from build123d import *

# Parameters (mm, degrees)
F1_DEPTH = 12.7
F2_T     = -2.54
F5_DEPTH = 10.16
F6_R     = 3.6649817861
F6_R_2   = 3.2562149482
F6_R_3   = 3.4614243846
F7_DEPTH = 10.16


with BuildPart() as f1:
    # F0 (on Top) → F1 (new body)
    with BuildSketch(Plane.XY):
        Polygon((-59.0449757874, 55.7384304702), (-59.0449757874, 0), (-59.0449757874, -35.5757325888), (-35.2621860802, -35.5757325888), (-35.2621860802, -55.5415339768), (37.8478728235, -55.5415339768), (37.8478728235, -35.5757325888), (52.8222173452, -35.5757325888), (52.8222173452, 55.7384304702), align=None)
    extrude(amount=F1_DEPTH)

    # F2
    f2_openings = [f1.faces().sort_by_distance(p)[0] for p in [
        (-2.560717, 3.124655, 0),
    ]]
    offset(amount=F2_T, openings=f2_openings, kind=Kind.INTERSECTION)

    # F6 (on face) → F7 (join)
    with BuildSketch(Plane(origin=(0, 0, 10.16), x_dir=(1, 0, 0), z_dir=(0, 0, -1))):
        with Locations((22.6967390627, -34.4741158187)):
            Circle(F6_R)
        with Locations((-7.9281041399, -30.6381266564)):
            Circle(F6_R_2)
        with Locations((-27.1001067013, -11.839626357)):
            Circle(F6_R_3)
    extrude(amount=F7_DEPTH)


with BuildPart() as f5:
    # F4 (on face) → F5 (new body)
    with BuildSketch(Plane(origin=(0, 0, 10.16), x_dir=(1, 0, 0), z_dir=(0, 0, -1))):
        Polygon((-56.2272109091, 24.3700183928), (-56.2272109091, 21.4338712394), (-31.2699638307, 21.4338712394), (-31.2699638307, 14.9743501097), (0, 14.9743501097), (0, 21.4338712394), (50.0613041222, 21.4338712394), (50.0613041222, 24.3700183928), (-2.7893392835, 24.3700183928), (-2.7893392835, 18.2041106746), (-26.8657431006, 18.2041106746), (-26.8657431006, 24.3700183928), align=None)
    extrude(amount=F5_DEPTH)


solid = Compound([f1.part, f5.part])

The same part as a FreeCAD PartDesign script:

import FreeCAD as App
import Part
import Sketcher
Q = App.Units.Quantity


def faces_at(feature, points):
    """Names of the faces that lie closest to the given points."""
    faces = feature.Shape.Faces
    near = lambda p: min(range(len(faces)), key=lambda i: faces[i].distToShape(Part.Vertex(*p))[0])
    return sorted({f"Face{near(p) + 1}" for p in points})

doc = App.newDocument("Part")
body = doc.addObject("PartDesign::Body", "Body")

sketch1 = doc.addObject("Sketcher::SketchObject", "Sketch")
body.addObject(sketch1)
sketch1.AttachmentSupport = (doc.XY_Plane, [""])
sketch1.MapMode = "FlatFace"
sketch1.addGeometry([
    Part.LineSegment(App.Vector(-59, 56, 0), App.Vector(-59, -36, 0)),
    Part.LineSegment(App.Vector(-59, -36, 0), App.Vector(-35, -36, 0)),
    Part.LineSegment(App.Vector(-35, -36, 0), App.Vector(-35, -56, 0)),
    Part.LineSegment(App.Vector(-35, -56, 0), App.Vector(38, -56, 0)),
    Part.LineSegment(App.Vector(38, -56, 0), App.Vector(38, -36, 0)),
    Part.LineSegment(App.Vector(38, -36, 0), App.Vector(53, -36, 0)),
    Part.LineSegment(App.Vector(53, -36, 0), App.Vector(53, 56, 0)),
    Part.LineSegment(App.Vector(53, 56, 0), App.Vector(-59, 56, 0)),
], False)
sketch1.addConstraint([
    Sketcher.Constraint("Coincident", 0, 2, 1, 1),
    Sketcher.Constraint("Coincident", 1, 2, 2, 1),
    Sketcher.Constraint("Coincident", 2, 2, 3, 1),
    Sketcher.Constraint("Coincident", 3, 2, 4, 1),
    Sketcher.Constraint("Coincident", 4, 2, 5, 1),
    Sketcher.Constraint("Coincident", 5, 2, 6, 1),
    Sketcher.Constraint("Coincident", 6, 2, 7, 1),
    Sketcher.Constraint("Coincident", 7, 2, 0, 1),
    Sketcher.Constraint("Vertical", 0),
    Sketcher.Constraint("Horizontal", 1),
    Sketcher.Constraint("Vertical", 2),
    Sketcher.Constraint("Horizontal", 3),
    Sketcher.Constraint("Vertical", 4),
    Sketcher.Constraint("Horizontal", 5),
    Sketcher.Constraint("Vertical", 6),
    Sketcher.Constraint("Horizontal", 7),
    Sketcher.Constraint("Horizontal", 1, 2, 4, 2),
    Sketcher.Constraint("DistanceY", 2, 2, 2, 1, 19.965801),
    Sketcher.Constraint("DistanceX", 1, 1, 1, 2, 23.78279),
    Sketcher.Constraint("DistanceX", 3, 1, 3, 2, 73.110059),
    Sketcher.Constraint("DistanceX", 5, 1, 5, 2, 14.974345),
    Sketcher.Constraint("DistanceY", 0, 2, 0, 1, 91.314163),
    Sketcher.Constraint("DistanceY", -1, 1, 6, 2, 55.73843),
    Sketcher.Constraint("DistanceX", 0, 2, -1, 1, 59.044976),
])
pad1 = doc.addObject("PartDesign::Pad", "Pad")
body.addObject(pad1)
pad1.Profile = sketch1
pad1.Length = Q("0.5 in")
doc.recompute()

thickness = doc.addObject("PartDesign::Thickness", "Thickness")
body.addObject(thickness)
thickness.Base = (pad1, faces_at(pad1, [(-3.111, 0.098, 0)]))
thickness.Value = Q("0.1 in")
thickness.Reversed = True
thickness.Join = "Intersection"

sketch2 = doc.addObject("Sketcher::SketchObject", "Sketch001")
body.addObject(sketch2)
sketch2.AttachmentSupport = (doc.XY_Plane, [""])
sketch2.MapMode = "FlatFace"
sketch2.AttachmentOffset = App.Placement(App.Vector(0, 0, 0.4 * 25.4), App.Rotation())
sketch2.addGeometry([
    Part.Circle(App.Vector(22.7, 34.5, 0), App.Vector(0, 0, 1), 3.7),
    Part.Circle(App.Vector(-7.9, 30.6, 0), App.Vector(0, 0, 1), 3.3),
    Part.Circle(App.Vector(-27.1, 11.8, 0), App.Vector(0, 0, 1), 3.5),
], False)
sketch2.addConstraint([
    Sketcher.Constraint("Diameter", 1, 6.51243),
    Sketcher.Constraint("Diameter", 2, 6.922849),
    Sketcher.Constraint("Diameter", 0, 7.329964),
    Sketcher.Constraint("DistanceY", 2, 3, 1, 3, 18.7985),
    Sketcher.Constraint("DistanceX", -1, 1, 0, 3, 22.696739),
    Sketcher.Constraint("DistanceY", 1, 3, 0, 3, 3.835989),
    Sketcher.Constraint("DistanceY", -1, 1, 0, 3, 34.474116),
    Sketcher.Constraint("DistanceX", 1, 3, -1, 1, 7.928104),
    Sketcher.Constraint("DistanceX", 2, 3, -1, 1, 27.100107),
])
pad2 = doc.addObject("PartDesign::Pad", "Pad001")
body.addObject(pad2)
pad2.Profile = sketch2
pad2.Length = Q("0.4 in")
pad2.Reversed = True
body2 = doc.addObject("PartDesign::Body", "Body001")

sketch3 = doc.addObject("Sketcher::SketchObject", "Sketch002")
body2.addObject(sketch3)
sketch3.AttachmentSupport = (doc.getObject("XY_Plane001"), [""])
sketch3.MapMode = "FlatFace"
sketch3.AttachmentOffset = App.Placement(App.Vector(0, 0, 0.4 * 25.4), App.Rotation())
sketch3.addGeometry([
    Part.LineSegment(App.Vector(-56.2, -24.4, 0), App.Vector(-56.2, -21.4, 0)),
    Part.LineSegment(App.Vector(-56.2, -21.4, 0), App.Vector(-31.3, -21.4, 0)),
    Part.LineSegment(App.Vector(-31.3, -21.4, 0), App.Vector(-31.3, -15, 0)),
    Part.LineSegment(App.Vector(-31.3, -15, 0), App.Vector(0, -15, 0)),
    Part.LineSegment(App.Vector(0, -15, 0), App.Vector(0, -21.4, 0)),
    Part.LineSegment(App.Vector(0, -21.4, 0), App.Vector(50.1, -21.4, 0)),
    Part.LineSegment(App.Vector(50.1, -21.4, 0), App.Vector(50.1, -24.4, 0)),
    Part.LineSegment(App.Vector(50.1, -24.4, 0), App.Vector(-2.8, -24.4, 0)),
    Part.LineSegment(App.Vector(-2.8, -24.4, 0), App.Vector(-2.8, -18.2, 0)),
    Part.LineSegment(App.Vector(-2.8, -18.2, 0), App.Vector(-26.9, -18.2, 0)),
    Part.LineSegment(App.Vector(-26.9, -18.2, 0), App.Vector(-26.9, -24.4, 0)),
    Part.LineSegment(App.Vector(-26.9, -24.4, 0), App.Vector(-56.2, -24.4, 0)),
], False)
sketch3.addConstraint([
    Sketcher.Constraint("Coincident", 0, 2, 1, 1),
    Sketcher.Constraint("Coincident", 1, 2, 2, 1),
    Sketcher.Constraint("Coincident", 2, 2, 3, 1),
    Sketcher.Constraint("Coincident", 3, 2, 4, 1),
    Sketcher.Constraint("Coincident", 4, 2, 5, 1),
    Sketcher.Constraint("Coincident", 5, 2, 6, 1),
    Sketcher.Constraint("Coincident", 6, 2, 7, 1),
    Sketcher.Constraint("Coincident", 7, 2, 8, 1),
    Sketcher.Constraint("Coincident", 8, 2, 9, 1),
    Sketcher.Constraint("Coincident", 9, 2, 10, 1),
    Sketcher.Constraint("Coincident", 10, 2, 11, 1),
    Sketcher.Constraint("Coincident", 11, 2, 0, 1),
    Sketcher.Constraint("Vertical", 0),
    Sketcher.Constraint("Horizontal", 1),
    Sketcher.Constraint("Vertical", 2),
    Sketcher.Constraint("Horizontal", 3),
    Sketcher.Constraint("Vertical", 4),
    Sketcher.Constraint("Horizontal", 5),
    Sketcher.Constraint("Vertical", 6),
    Sketcher.Constraint("Horizontal", 7),
    Sketcher.Constraint("Vertical", 8),
    Sketcher.Constraint("Horizontal", 9),
    Sketcher.Constraint("Vertical", 10),
    Sketcher.Constraint("Horizontal", 11),
    Sketcher.Constraint("PointOnObject", 3, 2, -2),
    Sketcher.Constraint("Horizontal", 1, 2, 4, 2),
    Sketcher.Constraint("Horizontal", 7, 2, 10, 2),
    Sketcher.Constraint("DistanceY", 2, 1, 2, 2, 6.459521),
    Sketcher.Constraint("DistanceX", 1, 1, 1, 2, 24.957247),
    Sketcher.Constraint("DistanceX", 3, 1, 3, 2, 31.269964),
    Sketcher.Constraint("DistanceX", 5, 1, 5, 2, 50.061304),
    Sketcher.Constraint("DistanceX", 7, 2, 7, 1, 52.850643),
    Sketcher.Constraint("DistanceX", 9, 2, 9, 1, 24.076404),
    Sketcher.Constraint("DistanceY", 0, 1, 0, 2, 2.936147),
    Sketcher.Constraint("DistanceY", 8, 1, 8, 2, 6.165908),
    Sketcher.Constraint("DistanceY", 0, 2, -1, 1, 21.433871),
])
pad3 = doc.addObject("PartDesign::Pad", "Pad002")
body2.addObject(pad3)
pad3.Profile = sketch3
pad3.Length = Q("0.4 in")
pad3.Reversed = True

doc.recompute()
